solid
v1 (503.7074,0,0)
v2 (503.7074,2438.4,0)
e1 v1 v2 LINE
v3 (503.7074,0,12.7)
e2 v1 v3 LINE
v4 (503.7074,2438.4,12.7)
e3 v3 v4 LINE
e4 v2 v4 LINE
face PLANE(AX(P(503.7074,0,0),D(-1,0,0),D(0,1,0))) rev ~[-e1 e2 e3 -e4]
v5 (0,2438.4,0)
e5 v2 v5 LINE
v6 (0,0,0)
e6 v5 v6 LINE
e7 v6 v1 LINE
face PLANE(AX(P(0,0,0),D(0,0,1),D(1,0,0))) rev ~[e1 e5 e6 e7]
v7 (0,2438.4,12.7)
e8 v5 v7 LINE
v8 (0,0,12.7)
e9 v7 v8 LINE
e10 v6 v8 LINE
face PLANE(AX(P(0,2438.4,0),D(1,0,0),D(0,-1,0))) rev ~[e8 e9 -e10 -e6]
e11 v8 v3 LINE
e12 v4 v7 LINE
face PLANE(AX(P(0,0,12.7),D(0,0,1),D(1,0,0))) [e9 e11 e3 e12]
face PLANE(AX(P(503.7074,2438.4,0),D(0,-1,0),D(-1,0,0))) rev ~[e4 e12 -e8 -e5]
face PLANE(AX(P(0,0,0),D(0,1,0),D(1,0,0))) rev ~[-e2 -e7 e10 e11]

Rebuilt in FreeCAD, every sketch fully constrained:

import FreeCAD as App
import Part
import Sketcher
from FreeCAD import Vector
Q = App.Units.Quantity


def add_polygon(sketch, points):
    """Adds a closed chain of lines whose ends are joined by coincident constraints."""
    first, n = sketch.GeometryCount, len(points)
    for a, b in zip(points, points[1:] + points[:1]):
        sketch.addGeometry(Part.LineSegment(App.Vector(*a, 0), App.Vector(*b, 0)), False)
    for i in range(n):
        sketch.addConstraint(Sketcher.Constraint("Coincident", first + i, 2, first + (i + 1) % n, 1))

doc = App.newDocument("Part")
params = doc.addObject("Spreadsheet::Sheet", "Params")
for row, (alias, value) in enumerate([
    ("sketch1_height", "96 in"),
    ("sketch1_width", "19.831 in"),
    ("pad1_length", "0.5 in"),
], start=1):
    params.set(f"A{row}", alias)
    params.set(f"B{row}", "=" + value)
    params.setAlias(f"B{row}", alias)

body = doc.addObject("PartDesign::Body", "Body")

# Sketch on XY plane
sketch1 = doc.addObject("Sketcher::SketchObject", "Sketch")
body.addObject(sketch1)
sketch1.AttachmentSupport = (doc.XY_Plane, [""])
sketch1.MapMode = "FlatFace"
add_polygon(sketch1, [(0, 2438.4), (0, 0), (503.7074, 0), (503.7074, 2438.4)])  # lines 0-3
sketch1.addConstraint(Sketcher.Constraint("Vertical", 0))
sketch1.addConstraint(Sketcher.Constraint("Horizontal", 1))
sketch1.addConstraint(Sketcher.Constraint("Vertical", 2))
sketch1.addConstraint(Sketcher.Constraint("Horizontal", 3))
sketch1.addConstraint(Sketcher.Constraint("Coincident", 0, 2, -1, 1))
sketch1.addConstraint(Sketcher.Constraint("DistanceY", 0, 2, 0, 1, Q("96 in")))
sketch1.addConstraint(Sketcher.Constraint("DistanceX", 1, 1, 1, 2, Q("19.831 in")))
sketch1.setExpression("Constraints[9]", "Params.sketch1_height")
sketch1.setExpression("Constraints[10]", "Params.sketch1_width")
pad1 = doc.addObject("PartDesign::Pad", "Pad")
body.addObject(pad1)
pad1.Profile = sketch1
pad1.setExpression("Length", "Params.pad1_length")

doc.recompute()
